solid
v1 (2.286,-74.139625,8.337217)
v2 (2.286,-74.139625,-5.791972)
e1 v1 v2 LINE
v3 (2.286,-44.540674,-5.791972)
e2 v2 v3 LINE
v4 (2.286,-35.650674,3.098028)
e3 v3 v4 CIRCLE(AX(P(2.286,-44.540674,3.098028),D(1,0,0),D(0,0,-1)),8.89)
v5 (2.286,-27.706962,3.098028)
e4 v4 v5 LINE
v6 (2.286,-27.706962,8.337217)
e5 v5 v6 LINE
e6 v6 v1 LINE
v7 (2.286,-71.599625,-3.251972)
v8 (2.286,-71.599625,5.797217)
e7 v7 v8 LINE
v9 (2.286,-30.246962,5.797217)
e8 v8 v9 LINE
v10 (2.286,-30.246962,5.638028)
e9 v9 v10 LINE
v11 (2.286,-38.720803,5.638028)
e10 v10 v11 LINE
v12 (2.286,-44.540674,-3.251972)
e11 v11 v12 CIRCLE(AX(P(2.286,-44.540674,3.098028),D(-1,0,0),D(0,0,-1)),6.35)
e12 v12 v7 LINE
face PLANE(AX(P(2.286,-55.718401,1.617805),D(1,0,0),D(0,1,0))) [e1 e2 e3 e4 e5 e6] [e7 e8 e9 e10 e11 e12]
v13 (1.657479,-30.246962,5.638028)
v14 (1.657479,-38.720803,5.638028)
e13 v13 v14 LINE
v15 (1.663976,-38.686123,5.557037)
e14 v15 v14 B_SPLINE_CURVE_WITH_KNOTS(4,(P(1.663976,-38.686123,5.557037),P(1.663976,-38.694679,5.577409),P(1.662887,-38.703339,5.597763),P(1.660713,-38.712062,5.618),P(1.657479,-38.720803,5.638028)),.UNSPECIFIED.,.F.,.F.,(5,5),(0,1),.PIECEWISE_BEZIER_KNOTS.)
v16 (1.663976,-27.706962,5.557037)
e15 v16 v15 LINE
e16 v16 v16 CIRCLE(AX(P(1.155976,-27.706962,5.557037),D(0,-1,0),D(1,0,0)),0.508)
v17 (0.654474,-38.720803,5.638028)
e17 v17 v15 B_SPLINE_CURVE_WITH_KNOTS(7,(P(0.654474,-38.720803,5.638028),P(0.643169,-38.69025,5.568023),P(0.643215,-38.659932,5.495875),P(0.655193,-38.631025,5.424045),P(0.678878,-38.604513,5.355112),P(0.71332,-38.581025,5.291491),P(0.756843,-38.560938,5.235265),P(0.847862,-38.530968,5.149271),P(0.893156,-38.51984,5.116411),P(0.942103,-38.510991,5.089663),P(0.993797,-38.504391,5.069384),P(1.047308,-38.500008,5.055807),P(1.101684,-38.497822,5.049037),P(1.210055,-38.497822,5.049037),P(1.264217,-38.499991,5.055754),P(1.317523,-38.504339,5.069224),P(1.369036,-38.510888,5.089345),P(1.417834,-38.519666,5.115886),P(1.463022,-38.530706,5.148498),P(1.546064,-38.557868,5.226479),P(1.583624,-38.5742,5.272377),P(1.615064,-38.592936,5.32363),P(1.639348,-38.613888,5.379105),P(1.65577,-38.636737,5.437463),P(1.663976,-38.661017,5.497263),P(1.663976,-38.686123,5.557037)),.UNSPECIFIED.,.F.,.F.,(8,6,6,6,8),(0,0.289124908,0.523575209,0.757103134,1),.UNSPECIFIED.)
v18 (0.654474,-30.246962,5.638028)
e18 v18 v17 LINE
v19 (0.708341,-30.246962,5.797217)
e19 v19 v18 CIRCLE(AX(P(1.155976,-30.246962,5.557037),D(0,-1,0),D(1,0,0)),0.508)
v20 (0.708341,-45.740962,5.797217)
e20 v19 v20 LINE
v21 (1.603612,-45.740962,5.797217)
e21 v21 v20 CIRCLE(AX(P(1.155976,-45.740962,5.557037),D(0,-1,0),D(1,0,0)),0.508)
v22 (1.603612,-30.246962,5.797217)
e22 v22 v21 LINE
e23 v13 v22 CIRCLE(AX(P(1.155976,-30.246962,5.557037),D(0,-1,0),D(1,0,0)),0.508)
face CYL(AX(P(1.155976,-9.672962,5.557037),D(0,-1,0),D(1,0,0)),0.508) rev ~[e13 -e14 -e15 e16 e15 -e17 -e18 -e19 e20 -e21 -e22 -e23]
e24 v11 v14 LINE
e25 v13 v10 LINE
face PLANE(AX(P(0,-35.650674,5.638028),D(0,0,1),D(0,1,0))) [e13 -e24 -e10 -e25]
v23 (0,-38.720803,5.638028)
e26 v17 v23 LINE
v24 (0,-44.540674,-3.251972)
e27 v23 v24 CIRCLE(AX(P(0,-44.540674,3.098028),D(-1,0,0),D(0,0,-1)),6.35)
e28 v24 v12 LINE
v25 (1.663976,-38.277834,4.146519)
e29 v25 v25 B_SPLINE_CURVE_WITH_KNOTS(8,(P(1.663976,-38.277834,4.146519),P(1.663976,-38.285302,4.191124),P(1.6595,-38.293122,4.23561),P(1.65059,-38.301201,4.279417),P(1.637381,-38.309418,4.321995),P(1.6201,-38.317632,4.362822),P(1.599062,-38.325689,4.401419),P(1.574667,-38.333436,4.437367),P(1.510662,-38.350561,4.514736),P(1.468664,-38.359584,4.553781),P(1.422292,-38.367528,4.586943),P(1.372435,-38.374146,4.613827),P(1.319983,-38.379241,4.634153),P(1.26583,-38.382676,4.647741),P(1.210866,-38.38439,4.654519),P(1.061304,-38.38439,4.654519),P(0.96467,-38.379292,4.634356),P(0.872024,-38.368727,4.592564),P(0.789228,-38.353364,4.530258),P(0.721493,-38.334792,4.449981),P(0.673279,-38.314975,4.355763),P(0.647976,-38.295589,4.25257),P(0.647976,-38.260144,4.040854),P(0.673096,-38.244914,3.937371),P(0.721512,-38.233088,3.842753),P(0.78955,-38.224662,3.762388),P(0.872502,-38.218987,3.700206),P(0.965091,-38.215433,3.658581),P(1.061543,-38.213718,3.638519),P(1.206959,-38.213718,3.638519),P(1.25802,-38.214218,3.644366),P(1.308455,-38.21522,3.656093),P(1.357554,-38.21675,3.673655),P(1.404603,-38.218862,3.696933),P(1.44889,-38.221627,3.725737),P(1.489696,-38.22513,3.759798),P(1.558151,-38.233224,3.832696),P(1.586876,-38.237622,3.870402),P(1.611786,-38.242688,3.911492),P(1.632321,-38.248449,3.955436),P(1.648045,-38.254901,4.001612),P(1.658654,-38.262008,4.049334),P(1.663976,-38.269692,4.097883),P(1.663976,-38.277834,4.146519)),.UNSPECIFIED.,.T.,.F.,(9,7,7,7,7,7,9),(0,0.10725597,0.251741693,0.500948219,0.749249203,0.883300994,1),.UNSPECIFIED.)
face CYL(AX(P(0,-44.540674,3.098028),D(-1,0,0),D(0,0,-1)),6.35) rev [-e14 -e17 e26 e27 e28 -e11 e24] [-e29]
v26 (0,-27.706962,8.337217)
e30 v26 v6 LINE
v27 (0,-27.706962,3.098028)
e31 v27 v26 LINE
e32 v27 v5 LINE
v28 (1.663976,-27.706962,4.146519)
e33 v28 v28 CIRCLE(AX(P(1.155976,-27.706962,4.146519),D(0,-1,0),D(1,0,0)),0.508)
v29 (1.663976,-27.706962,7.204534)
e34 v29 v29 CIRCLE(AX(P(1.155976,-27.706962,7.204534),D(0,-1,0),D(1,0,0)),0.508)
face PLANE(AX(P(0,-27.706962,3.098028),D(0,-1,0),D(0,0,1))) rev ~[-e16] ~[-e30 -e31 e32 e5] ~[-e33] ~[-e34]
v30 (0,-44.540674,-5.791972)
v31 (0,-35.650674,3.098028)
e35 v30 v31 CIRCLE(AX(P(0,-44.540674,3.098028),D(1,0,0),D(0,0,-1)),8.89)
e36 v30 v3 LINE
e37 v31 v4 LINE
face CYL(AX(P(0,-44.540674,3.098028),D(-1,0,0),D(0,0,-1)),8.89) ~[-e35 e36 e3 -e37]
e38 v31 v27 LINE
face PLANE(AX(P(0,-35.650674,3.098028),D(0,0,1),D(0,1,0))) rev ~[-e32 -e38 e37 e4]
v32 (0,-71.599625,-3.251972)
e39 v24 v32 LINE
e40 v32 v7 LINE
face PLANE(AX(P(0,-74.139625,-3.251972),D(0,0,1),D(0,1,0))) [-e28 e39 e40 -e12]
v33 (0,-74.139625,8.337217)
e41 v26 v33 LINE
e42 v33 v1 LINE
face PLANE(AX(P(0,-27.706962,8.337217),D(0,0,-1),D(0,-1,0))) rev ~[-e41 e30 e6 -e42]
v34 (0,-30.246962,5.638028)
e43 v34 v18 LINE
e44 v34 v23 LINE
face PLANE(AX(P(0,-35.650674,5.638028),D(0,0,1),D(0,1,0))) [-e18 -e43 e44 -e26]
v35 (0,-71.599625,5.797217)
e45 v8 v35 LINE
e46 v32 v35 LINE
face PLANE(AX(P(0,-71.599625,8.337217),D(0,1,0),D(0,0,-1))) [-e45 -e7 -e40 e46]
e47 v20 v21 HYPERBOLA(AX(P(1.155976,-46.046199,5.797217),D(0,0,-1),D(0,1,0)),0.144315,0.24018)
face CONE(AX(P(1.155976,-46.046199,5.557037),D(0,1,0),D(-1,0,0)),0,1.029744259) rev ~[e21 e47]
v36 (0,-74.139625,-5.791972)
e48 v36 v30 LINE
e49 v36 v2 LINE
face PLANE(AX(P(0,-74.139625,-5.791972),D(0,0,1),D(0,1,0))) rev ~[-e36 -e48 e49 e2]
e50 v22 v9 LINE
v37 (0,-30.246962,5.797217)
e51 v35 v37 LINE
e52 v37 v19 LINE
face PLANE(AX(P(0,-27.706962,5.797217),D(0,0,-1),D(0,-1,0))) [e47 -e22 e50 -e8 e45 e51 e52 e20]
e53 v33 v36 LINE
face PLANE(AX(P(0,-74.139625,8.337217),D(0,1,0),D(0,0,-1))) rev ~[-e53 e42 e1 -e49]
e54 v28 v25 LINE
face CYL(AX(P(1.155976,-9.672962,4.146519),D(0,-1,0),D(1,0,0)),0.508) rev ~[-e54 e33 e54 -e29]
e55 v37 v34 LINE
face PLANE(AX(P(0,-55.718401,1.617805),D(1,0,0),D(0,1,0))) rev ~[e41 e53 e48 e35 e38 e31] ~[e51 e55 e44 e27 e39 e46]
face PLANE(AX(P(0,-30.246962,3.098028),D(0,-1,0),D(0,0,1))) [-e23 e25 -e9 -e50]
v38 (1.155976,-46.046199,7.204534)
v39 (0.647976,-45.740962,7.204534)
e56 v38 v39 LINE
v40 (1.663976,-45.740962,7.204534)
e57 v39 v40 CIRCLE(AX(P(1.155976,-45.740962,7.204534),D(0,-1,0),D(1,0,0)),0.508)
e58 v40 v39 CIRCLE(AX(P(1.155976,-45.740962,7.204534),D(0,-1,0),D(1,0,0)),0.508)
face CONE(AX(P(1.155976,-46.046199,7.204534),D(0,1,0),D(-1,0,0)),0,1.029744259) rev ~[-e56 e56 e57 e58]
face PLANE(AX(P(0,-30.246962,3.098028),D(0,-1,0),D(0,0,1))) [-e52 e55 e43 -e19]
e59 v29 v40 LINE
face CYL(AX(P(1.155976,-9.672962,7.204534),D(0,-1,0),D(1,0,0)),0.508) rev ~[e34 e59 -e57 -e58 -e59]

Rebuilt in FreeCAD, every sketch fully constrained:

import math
import FreeCAD as App
import Part
import Sketcher
from FreeCAD import Vector
Q = App.Units.Quantity


def faces_at(feature, points):
    """Names of the faces that lie closest to the given points."""
    faces = feature.Shape.Faces
    near = lambda p: min(range(len(faces)), key=lambda i: faces[i].distToShape(Part.Vertex(*p))[0])
    return sorted({f"Face{near(p) + 1}" for p in points})

doc = App.newDocument("Part")
params = doc.addObject("Spreadsheet::Sheet", "Params")
for row, (alias, value) in enumerate([
    ("sketch1_radius", "0.35 in"),
    ("pad1_length", "0.09 in"),
    ("thickness_wall", "0.1 in"),
    ("sketch2_diameter", "0.04 in"),
    ("hole_diameter", "0.04 in"),
    ("hole_depth", "0.71 in"),
], start=1):
    params.set(f"A{row}", alias)
    params.set(f"B{row}", "=" + value)
    params.setAlias(f"B{row}", alias)

body = doc.addObject("PartDesign::Body", "Body")

sketch1 = body.newObject("Sketcher::SketchObject", "Sketch")
sketch1.AttachmentSupport = (doc.getObject("YZ_Plane"), [""])
sketch1.MapMode = "FlatFace"
sketch1.addGeometry(Part.LineSegment(Vector(-74.139625, 8.337217, 0), Vector(-74.139625, -5.791972, 0)), False)
sketch1.addGeometry(Part.LineSegment(Vector(-74.139625, -5.791972, 0), Vector(-44.540674, -5.791972, 0)), False)
sketch1.addGeometry(Part.ArcOfCircle(Part.Circle(Vector(-44.540674, 3.098028, 0), Vector(0, 0, 1), 8.89), math.radians(-90), math.radians(0)), False)
sketch1.addGeometry(Part.LineSegment(Vector(-35.650674, 3.098028, 0), Vector(-27.706962, 3.098028, 0)), False)
sketch1.addGeometry(Part.LineSegment(Vector(-27.706962, 3.098028, 0), Vector(-27.706962, 8.337217, 0)), False)
sketch1.addGeometry(Part.LineSegment(Vector(-27.706962, 8.337217, 0), Vector(-74.139625, 8.337217, 0)), False)
sketch1.addConstraint(Sketcher.Constraint("Coincident", 0, 2, 1, 1))
sketch1.addConstraint(Sketcher.Constraint("Tangent", 1, 2, 2, 1))
sketch1.addConstraint(Sketcher.Constraint("Coincident", 2, 2, 3, 1))
sketch1.addConstraint(Sketcher.Constraint("Coincident", 3, 2, 4, 1))
sketch1.addConstraint(Sketcher.Constraint("Coincident", 4, 2, 5, 1))
sketch1.addConstraint(Sketcher.Constraint("Coincident", 5, 2, 0, 1))
sketch1.addConstraint(Sketcher.Constraint("Vertical", 0))
sketch1.addConstraint(Sketcher.Constraint("Horizontal", 1))
sketch1.addConstraint(Sketcher.Constraint("Horizontal", 3))
sketch1.addConstraint(Sketcher.Constraint("Vertical", 4))
sketch1.addConstraint(Sketcher.Constraint("Horizontal", 5))
sketch1.addConstraint(Sketcher.Constraint("Radius", 2, Q("0.35 in")))
sketch1.addConstraint(Sketcher.Constraint("DistanceY", 1, 2, 2, 2, Q("0.35 in")))
sketch1.addConstraint(Sketcher.Constraint("DistanceX", 1, 1, 1, 2, 29.598951))
sketch1.addConstraint(Sketcher.Constraint("DistanceY", 0, 2, 0, 1, 14.129189))
sketch1.addConstraint(Sketcher.Constraint("DistanceX", 3, 1, 3, 2, 7.943712))
sketch1.addConstraint(Sketcher.Constraint("DistanceY", -1, 1, 2, 3, 3.098028))
sketch1.addConstraint(Sketcher.Constraint("DistanceX", 2, 3, -1, 1, 44.540674))
sketch1.setExpression("Constraints[11]", "Params.sketch1_radius")
pad1 = body.newObject("PartDesign::Pad", "Pad")
pad1.Profile = sketch1
pad1.setExpression("Length", "Params.pad1_length")
doc.recompute()

thickness = body.newObject("PartDesign::Thickness", "Thickness")
thickness.Base = (pad1, faces_at(pad1, [(2.286, -50.923, 1.273), (0, -50.923, 1.273)]))
thickness.setExpression("Value", "Params.thickness_wall")
thickness.Reversed = True
thickness.Join = "Intersection"

sketch2 = body.newObject("Sketcher::SketchObject", "Sketch001")
sketch2.AttachmentSupport = (doc.getObject("XZ_Plane"), [""])
sketch2.MapMode = "FlatFace"
sketch2.AttachmentOffset = App.Placement(Vector(0, 0, 27.706962), App.Rotation())
sketch2.addGeometry(Part.Circle(Vector(1.155976, 7.204534, 0), Vector(0, 0, 1), 0.508), False)
sketch2.addGeometry(Part.Circle(Vector(1.155976, 5.557037, 0), Vector(0, 0, 1), 0.508), False)
sketch2.addGeometry(Part.Circle(Vector(1.155976, 4.146519, 0), Vector(0, 0, 1), 0.508), False)
sketch2.addConstraint(Sketcher.Constraint("Equal", 0, 1))
sketch2.addConstraint(Sketcher.Constraint("Equal", 1, 2))
sketch2.addConstraint(Sketcher.Constraint("Vertical", 0, 3, 1, 3))
sketch2.addConstraint(Sketcher.Constraint("Vertical", 1, 3, 2, 3))
sketch2.addConstraint(Sketcher.Constraint("Diameter", 0, Q("0.04 in")))
sketch2.addConstraint(Sketcher.Constraint("DistanceY", -1, 1, 2, 3, 4.146519))
sketch2.addConstraint(Sketcher.Constraint("DistanceY", 2, 3, 1, 3, 1.410518))
sketch2.addConstraint(Sketcher.Constraint("DistanceX", -1, 1, 0, 3, 1.155976))
sketch2.addConstraint(Sketcher.Constraint("DistanceY", -1, 1, 0, 3, 7.204534))
sketch2.setExpression("Constraints[4]", "Params.sketch2_diameter")
doc.recompute()
hole = body.newObject("PartDesign::Hole", "Hole")
hole.Profile = sketch2
hole.ThreadType = "None"
hole.setExpression("Diameter", "Params.hole_diameter")
hole.DepthType = "Dimension"
hole.setExpression("Depth", "Params.hole_depth")
hole.DrillPoint = "Angled"
hole.DrillPointAngle = 118
hole.Reversed = True

doc.recompute()
